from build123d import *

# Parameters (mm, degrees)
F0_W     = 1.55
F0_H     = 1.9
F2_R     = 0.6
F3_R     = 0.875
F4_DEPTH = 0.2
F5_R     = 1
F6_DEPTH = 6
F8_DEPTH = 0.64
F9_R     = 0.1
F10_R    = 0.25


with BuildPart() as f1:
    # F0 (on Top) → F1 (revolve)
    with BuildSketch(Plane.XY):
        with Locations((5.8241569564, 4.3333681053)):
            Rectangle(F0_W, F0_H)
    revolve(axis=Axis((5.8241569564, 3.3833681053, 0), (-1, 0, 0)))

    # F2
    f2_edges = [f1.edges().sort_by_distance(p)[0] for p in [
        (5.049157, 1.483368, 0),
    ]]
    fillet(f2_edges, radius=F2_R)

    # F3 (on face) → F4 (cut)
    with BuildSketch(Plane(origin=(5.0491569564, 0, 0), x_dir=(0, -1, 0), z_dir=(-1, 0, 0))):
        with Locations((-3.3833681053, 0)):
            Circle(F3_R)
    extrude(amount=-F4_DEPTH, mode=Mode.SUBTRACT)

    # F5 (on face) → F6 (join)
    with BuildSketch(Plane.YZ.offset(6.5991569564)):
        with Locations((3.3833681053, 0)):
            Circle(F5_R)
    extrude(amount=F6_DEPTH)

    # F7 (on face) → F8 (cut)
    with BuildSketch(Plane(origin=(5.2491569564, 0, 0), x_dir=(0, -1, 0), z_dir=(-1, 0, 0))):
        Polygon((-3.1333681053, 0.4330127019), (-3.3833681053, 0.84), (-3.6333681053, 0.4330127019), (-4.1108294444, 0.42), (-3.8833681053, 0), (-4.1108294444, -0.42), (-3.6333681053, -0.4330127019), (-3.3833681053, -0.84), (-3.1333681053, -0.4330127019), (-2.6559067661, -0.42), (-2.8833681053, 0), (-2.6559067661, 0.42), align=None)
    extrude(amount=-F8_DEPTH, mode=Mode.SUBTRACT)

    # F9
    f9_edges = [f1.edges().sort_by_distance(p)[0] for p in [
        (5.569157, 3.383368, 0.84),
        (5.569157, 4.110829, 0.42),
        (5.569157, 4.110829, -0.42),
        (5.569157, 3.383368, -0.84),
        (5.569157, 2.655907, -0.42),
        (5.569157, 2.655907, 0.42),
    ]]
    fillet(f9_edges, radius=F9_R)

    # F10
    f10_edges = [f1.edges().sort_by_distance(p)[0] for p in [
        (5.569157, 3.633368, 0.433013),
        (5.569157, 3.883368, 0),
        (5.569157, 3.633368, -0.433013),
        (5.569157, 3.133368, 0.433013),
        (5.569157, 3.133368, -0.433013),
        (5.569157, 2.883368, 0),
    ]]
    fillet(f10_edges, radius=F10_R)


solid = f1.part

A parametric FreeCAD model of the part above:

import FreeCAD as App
import Part
import Sketcher
from FreeCAD import Vector
Q = App.Units.Quantity


def edges_at(feature, points):
    """Names of the edges that pass closest to the given points."""
    edges = feature.Shape.Edges
    near = lambda p: min(range(len(edges)), key=lambda i: edges[i].distToShape(Part.Vertex(*p))[0])
    return sorted({f"Edge{near(p) + 1}" for p in points})


def add_polygon(sketch, points):
    """Adds a closed chain of lines whose ends are joined by coincident constraints."""
    first, n = sketch.GeometryCount, len(points)
    for a, b in zip(points, points[1:] + points[:1]):
        sketch.addGeometry(Part.LineSegment(App.Vector(*a, 0), App.Vector(*b, 0)), False)
    for i in range(n):
        sketch.addConstraint(Sketcher.Constraint("Coincident", first + i, 2, first + (i + 1) % n, 1))

doc = App.newDocument("Part")
body = doc.addObject("PartDesign::Body", "Body")

sketch1 = body.newObject("Sketcher::SketchObject", "Sketch")
sketch1.AttachmentSupport = (doc.getObject("XY_Plane"), [""])
sketch1.MapMode = "FlatFace"
add_polygon(sketch1, [(5, 5.3), (5, 3.4), (6.6, 3.4), (6.6, 5.3)])
sketch1.addGeometry(Part.LineSegment(Vector(6.6, 3.4, 0), Vector(5, 3.4, 0)), True)
sketch1.addConstraint([
    Sketcher.Constraint("Vertical", 0),
    Sketcher.Constraint("Horizontal", 1),
    Sketcher.Constraint("Vertical", 2),
    Sketcher.Constraint("Horizontal", 3),
    Sketcher.Constraint("Horizontal", 4),
    Sketcher.Constraint("Coincident", 4, 1, 1, 2),
    Sketcher.Constraint("Vertical", 3, 2, 4, 2),
    Sketcher.Constraint("DistanceY", 0, 2, 0, 1, Q("1.9 mm")),
    Sketcher.Constraint("DistanceX", 1, 1, 1, 2, Q("1.55 mm")),
    Sketcher.Constraint("DistanceY", -1, 1, 0, 2, Q("3.383368 mm")),
    Sketcher.Constraint("DistanceX", -1, 1, 0, 2, Q("5.049157 mm")),
])
revolution = body.newObject("PartDesign::Revolution", "Revolution")
revolution.Profile = sketch1
revolution.ReferenceAxis = (sketch1, ["Axis0"])
revolution.Angle = 360
doc.recompute()

fillet = body.newObject("PartDesign::Fillet", "Fillet")
fillet.Base = (revolution, edges_at(revolution, [(5.049, 1.483, 0)]))
fillet.Radius = 0.6

sketch2 = body.newObject("Sketcher::SketchObject", "Sketch001")
sketch2.AttachmentSupport = (doc.getObject("YZ_Plane"), [""])
sketch2.MapMode = "FlatFace"
sketch2.AttachmentOffset = App.Placement(Vector(0, 0, 5.049157), App.Rotation())
sketch2.addGeometry(Part.Circle(Vector(3.4, 0, 0), Vector(0, 0, 1), 0.9), False)
sketch2.addConstraint([
    Sketcher.Constraint("PointOnObject", 0, 3, -1),
    Sketcher.Constraint("Diameter", 0, Q("1.75 mm")),
    Sketcher.Constraint("DistanceX", -1, 1, 0, 3, Q("3.383368 mm")),
])
pocket1 = body.newObject("PartDesign::Pocket", "Pocket")
pocket1.Profile = sketch2
pocket1.Length = 0.2
pocket1.Reversed = True

sketch3 = body.newObject("Sketcher::SketchObject", "Sketch002")
sketch3.AttachmentSupport = (doc.getObject("YZ_Plane"), [""])
sketch3.MapMode = "FlatFace"
sketch3.AttachmentOffset = App.Placement(Vector(0, 0, 6.599157), App.Rotation())
sketch3.addGeometry(Part.Circle(Vector(3.4, 0, 0), Vector(0, 0, 1), 1), False)
sketch3.addConstraint([
    Sketcher.Constraint("PointOnObject", 0, 3, -1),
    Sketcher.Constraint("Diameter", 0, Q("2 mm")),
    Sketcher.Constraint("DistanceX", -1, 1, 0, 3, Q("3.383368 mm")),
])
pad1 = body.newObject("PartDesign::Pad", "Pad")
pad1.Profile = sketch3
pad1.Length = 6

sketch4 = body.newObject("Sketcher::SketchObject", "Sketch003")
sketch4.AttachmentSupport = (doc.getObject("YZ_Plane"), [""])
sketch4.MapMode = "FlatFace"
sketch4.AttachmentOffset = App.Placement(Vector(0, 0, 5.249157), App.Rotation())
add_polygon(sketch4, [(3.13, 0.43), (3.38, 0.84), (3.63, 0.43), (4.11, 0.42), (3.88, 0), (4.11, -0.42), (3.63, -0.43), (3.38, -0.84), (3.13, -0.43), (2.66, -0.42), (2.88, 0), (2.66, 0.42)])
sketch4.addConstraint([
    Sketcher.Constraint("Symmetric", 2, 2, 4, 2, -1),
    Sketcher.Constraint("Symmetric", 1, 2, 5, 2, -1),
    Sketcher.Constraint("Symmetric", 0, 2, 6, 2, -1),
    Sketcher.Constraint("Symmetric", 8, 2, 10, 2, -1),
    Sketcher.Constraint("Symmetric", 7, 2, 11, 2, -1),
    Sketcher.Constraint("PointOnObject", 3, 2, -1),
    Sketcher.Constraint("PointOnObject", 9, 2, -1),
    Sketcher.Constraint("Parallel", 0, 6),
    Sketcher.Constraint("Parallel", 2, 8),
    Sketcher.Constraint("Parallel", 3, 9),
    Sketcher.Constraint("Horizontal", 5, 2, 7, 2),
    Sketcher.Constraint("Horizontal", 4, 2, 8, 2),
    Sketcher.Constraint("Equal", 1, 2),
    Sketcher.Constraint("Equal", 2, 3),
    Sketcher.Constraint("DistanceX", 0, 2, 3, 2, Q("0.5 mm")),
    Sketcher.Constraint("DistanceX", 7, 2, 5, 2, Q("0.5 mm")),
    Sketcher.Constraint("DistanceY", -1, 1, 0, 2, Q("0.84 mm")),
    Sketcher.Constraint("DistanceY", -1, 1, 2, 2, Q("0.42 mm")),
    Sketcher.Constraint("DistanceX", -1, 1, 0, 2, Q("3.383368 mm")),
])
pocket2 = body.newObject("PartDesign::Pocket", "Pocket001")
pocket2.Profile = sketch4
pocket2.Length = 0.64
pocket2.Reversed = True
doc.recompute()

fillet2 = body.newObject("PartDesign::Fillet", "Fillet001")
fillet2.Base = (pocket2, edges_at(pocket2, [
    (5.569, 3.383, 0.84),
    (5.569, 4.111, 0.42),
    (5.569, 4.111, -0.42),
    (5.569, 3.383, -0.84),
    (5.569, 2.656, -0.42),
    (5.569, 2.656, 0.42),
]))
fillet2.Radius = 0.1
doc.recompute()

fillet3 = body.newObject("PartDesign::Fillet", "Fillet002")
fillet3.Base = (fillet2, edges_at(fillet2, [
    (5.569, 3.633, 0.433),
    (5.569, 3.883, 0),
    (5.569, 3.633, -0.433),
    (5.569, 3.133, 0.433),
    (5.569, 3.133, -0.433),
    (5.569, 2.883, 0),
]))
fillet3.Radius = 0.25

doc.recompute()
